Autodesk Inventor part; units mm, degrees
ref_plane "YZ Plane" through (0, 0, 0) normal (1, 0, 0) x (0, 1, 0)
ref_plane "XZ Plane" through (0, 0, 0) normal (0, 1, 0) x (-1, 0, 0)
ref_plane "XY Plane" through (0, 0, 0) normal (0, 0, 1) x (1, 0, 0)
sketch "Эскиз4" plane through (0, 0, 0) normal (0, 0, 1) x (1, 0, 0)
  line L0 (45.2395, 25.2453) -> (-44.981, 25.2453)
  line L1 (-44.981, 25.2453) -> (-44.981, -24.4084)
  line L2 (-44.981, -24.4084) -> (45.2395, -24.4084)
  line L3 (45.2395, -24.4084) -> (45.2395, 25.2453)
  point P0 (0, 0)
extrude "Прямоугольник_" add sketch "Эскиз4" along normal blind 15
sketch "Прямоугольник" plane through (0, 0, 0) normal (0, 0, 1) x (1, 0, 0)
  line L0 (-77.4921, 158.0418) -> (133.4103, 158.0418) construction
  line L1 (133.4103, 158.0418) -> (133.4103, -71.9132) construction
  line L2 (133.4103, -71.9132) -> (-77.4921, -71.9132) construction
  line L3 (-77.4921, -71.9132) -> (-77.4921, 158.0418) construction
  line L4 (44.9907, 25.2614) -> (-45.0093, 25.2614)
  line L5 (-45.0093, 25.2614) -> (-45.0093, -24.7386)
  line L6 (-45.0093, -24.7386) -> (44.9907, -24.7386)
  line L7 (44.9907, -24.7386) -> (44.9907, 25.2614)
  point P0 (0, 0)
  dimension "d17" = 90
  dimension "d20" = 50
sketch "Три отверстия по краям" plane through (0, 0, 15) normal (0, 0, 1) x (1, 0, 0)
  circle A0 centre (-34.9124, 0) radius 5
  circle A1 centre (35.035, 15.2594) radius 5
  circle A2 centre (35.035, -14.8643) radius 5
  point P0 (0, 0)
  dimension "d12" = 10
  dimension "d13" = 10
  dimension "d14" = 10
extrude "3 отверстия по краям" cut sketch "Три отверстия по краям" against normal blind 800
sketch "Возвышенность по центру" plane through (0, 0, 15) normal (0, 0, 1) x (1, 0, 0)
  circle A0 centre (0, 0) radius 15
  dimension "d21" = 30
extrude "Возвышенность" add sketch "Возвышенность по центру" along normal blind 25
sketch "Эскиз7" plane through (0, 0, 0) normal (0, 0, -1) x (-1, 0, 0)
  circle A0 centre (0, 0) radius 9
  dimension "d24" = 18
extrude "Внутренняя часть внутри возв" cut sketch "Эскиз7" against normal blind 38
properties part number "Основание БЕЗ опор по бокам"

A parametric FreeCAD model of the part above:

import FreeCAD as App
import Part
import Sketcher
Q = App.Units.Quantity


def add_polygon(sketch, points):
    """Adds a closed chain of lines whose ends are joined by coincident constraints."""
    first, n = sketch.GeometryCount, len(points)
    for a, b in zip(points, points[1:] + points[:1]):
        sketch.addGeometry(Part.LineSegment(App.Vector(*a, 0), App.Vector(*b, 0)), False)
    for i in range(n):
        sketch.addConstraint(Sketcher.Constraint("Coincident", first + i, 2, first + (i + 1) % n, 1))

doc = App.newDocument("Part")
body = doc.addObject("PartDesign::Body", "Body")

# Sketch on XY plane
sketch1 = doc.addObject("Sketcher::SketchObject", "Sketch")
body.addObject(sketch1)
sketch1.AttachmentSupport = (doc.XY_Plane, [""])
sketch1.MapMode = "FlatFace"
add_polygon(sketch1, [(45, -24), (45, 25), (-45, 25), (-45, -24)])  # lines 0-3
sketch1.addConstraint([
    Sketcher.Constraint("Vertical", 0),
    Sketcher.Constraint("Horizontal", 1),
    Sketcher.Constraint("Vertical", 2),
    Sketcher.Constraint("Horizontal", 3),
    Sketcher.Constraint("DistanceX", 1, 2, 1, 1, Q("90.2205 mm")),
    Sketcher.Constraint("DistanceY", 0, 1, 0, 2, Q("49.6537 mm")),
    Sketcher.Constraint("DistanceX", 1, 2, -1, 1, Q("44.981 mm")),
    Sketcher.Constraint("DistanceY", -1, 1, 0, 2, Q("25.2453 mm")),
])
pad1 = doc.addObject("PartDesign::Pad", "Pad")
body.addObject(pad1)
pad1.Profile = sketch1
pad1.Length = 15

# Sketch on XY plane
sketch2 = doc.addObject("Sketcher::SketchObject", "Sketch001")
body.addObject(sketch2)
sketch2.AttachmentSupport = (doc.XY_Plane, [""])
sketch2.MapMode = "FlatFace"
sketch2.AttachmentOffset = App.Placement(App.Vector(0, 0, 15), App.Rotation())
sketch2.addGeometry([
    Part.Circle(App.Vector(-35, 0, 0), App.Vector(0, 0, 1), 5),
    Part.Circle(App.Vector(35, 15, 0), App.Vector(0, 0, 1), 5),
    Part.Circle(App.Vector(35, -15, 0), App.Vector(0, 0, 1), 5),
], False)
sketch2.addConstraint([
    Sketcher.Constraint("Equal", 0, 1),
    Sketcher.Constraint("Equal", 1, 2),
    Sketcher.Constraint("PointOnObject", 0, 3, -1),
    Sketcher.Constraint("Vertical", 1, 3, 2, 3),
    Sketcher.Constraint("Diameter", 0, Q("10 mm")),
    Sketcher.Constraint("DistanceX", -1, 1, 1, 3, Q("35.035 mm")),
    Sketcher.Constraint("DistanceX", 0, 3, -1, 1, Q("34.9124 mm")),
    Sketcher.Constraint("DistanceY", -1, 1, 1, 3, Q("15.2594 mm")),
    Sketcher.Constraint("DistanceY", 2, 3, -1, 1, Q("14.8643 mm")),
])
pocket1 = doc.addObject("PartDesign::Pocket", "Pocket")
body.addObject(pocket1)
pocket1.Profile = sketch2
pocket1.Length = 800

# Sketch on XY plane
sketch3 = doc.addObject("Sketcher::SketchObject", "Sketch002")
body.addObject(sketch3)
sketch3.AttachmentSupport = (doc.XY_Plane, [""])
sketch3.MapMode = "FlatFace"
sketch3.AttachmentOffset = App.Placement(App.Vector(0, 0, 15), App.Rotation())
sketch3.addGeometry(Part.Circle(App.Vector(0, 0, 0), App.Vector(0, 0, 1), 15), False)
sketch3.addConstraint([
    Sketcher.Constraint("Coincident", 0, 3, -1, 1),
    Sketcher.Constraint("Diameter", 0, Q("30 mm")),
])
pad2 = doc.addObject("PartDesign::Pad", "Pad001")
body.addObject(pad2)
pad2.Profile = sketch3
pad2.Length = 25

# Sketch on XY plane
sketch4 = doc.addObject("Sketcher::SketchObject", "Sketch003")
body.addObject(sketch4)
sketch4.AttachmentSupport = (doc.XY_Plane, [""])
sketch4.MapMode = "FlatFace"
sketch4.addGeometry(Part.Circle(App.Vector(0, 0, 0), App.Vector(0, 0, 1), 9), False)
sketch4.addConstraint([
    Sketcher.Constraint("Coincident", 0, 3, -1, 1),
    Sketcher.Constraint("Diameter", 0, Q("18 mm")),
])
pocket2 = doc.addObject("PartDesign::Pocket", "Pocket001")
body.addObject(pocket2)
pocket2.Profile = sketch4
pocket2.Length = 38
pocket2.Reversed = True

doc.recompute()
